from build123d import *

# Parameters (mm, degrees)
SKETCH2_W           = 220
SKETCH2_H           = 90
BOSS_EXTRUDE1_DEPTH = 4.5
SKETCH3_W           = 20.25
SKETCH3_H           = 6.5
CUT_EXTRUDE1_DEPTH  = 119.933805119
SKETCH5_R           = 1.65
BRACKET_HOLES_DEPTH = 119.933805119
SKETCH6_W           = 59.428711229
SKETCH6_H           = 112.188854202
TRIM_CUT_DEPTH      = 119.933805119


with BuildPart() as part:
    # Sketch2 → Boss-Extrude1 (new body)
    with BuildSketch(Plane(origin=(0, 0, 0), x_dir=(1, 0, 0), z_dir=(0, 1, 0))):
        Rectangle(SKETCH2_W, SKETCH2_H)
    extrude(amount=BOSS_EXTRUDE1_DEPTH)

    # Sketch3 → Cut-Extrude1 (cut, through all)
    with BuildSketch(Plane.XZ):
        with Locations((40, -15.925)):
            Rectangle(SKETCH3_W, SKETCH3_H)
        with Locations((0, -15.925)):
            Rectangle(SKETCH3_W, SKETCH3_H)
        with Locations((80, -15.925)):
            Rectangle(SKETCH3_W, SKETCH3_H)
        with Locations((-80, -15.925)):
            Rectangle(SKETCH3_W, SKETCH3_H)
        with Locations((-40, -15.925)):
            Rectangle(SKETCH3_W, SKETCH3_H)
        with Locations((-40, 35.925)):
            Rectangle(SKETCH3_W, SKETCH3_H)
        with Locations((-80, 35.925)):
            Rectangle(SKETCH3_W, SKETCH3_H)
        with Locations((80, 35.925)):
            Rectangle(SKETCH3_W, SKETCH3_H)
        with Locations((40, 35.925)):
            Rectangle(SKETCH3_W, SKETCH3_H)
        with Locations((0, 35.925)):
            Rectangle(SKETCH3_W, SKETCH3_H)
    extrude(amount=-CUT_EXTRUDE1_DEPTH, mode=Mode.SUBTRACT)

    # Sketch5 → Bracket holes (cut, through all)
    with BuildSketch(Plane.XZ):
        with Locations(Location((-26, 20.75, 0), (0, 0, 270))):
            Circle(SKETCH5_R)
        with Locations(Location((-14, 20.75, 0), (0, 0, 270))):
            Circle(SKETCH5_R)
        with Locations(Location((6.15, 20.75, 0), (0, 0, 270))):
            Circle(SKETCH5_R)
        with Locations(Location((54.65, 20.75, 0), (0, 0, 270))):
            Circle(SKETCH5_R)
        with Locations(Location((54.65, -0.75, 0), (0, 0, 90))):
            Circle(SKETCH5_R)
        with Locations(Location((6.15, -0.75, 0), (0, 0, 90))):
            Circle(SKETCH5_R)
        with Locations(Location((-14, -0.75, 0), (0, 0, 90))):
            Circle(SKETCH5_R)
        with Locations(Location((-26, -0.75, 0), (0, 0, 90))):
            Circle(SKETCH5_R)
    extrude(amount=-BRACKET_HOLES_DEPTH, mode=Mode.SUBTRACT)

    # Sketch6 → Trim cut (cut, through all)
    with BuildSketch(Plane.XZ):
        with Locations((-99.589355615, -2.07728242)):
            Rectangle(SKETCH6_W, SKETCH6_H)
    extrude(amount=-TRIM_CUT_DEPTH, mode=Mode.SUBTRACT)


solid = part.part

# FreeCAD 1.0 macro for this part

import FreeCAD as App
import Part
import Sketcher
Q = App.Units.Quantity

doc = App.newDocument("Part")
body = doc.addObject("PartDesign::Body", "Body")

# Sketch on XZ plane
sketch1 = doc.addObject("Sketcher::SketchObject", "Sketch")
body.addObject(sketch1)
sketch1.AttachmentSupport = (doc.XZ_Plane, [""])
sketch1.MapMode = "FlatFace"
sketch1.addGeometry([
    Part.LineSegment(App.Vector(-110, -45, 0), App.Vector(-110, 45, 0)),
    Part.LineSegment(App.Vector(-110, 45, 0), App.Vector(110, 45, 0)),
    Part.LineSegment(App.Vector(110, 45, 0), App.Vector(110, -45, 0)),
    Part.LineSegment(App.Vector(110, -45, 0), App.Vector(-110, -45, 0)),
], False)
sketch1.addConstraint([
    Sketcher.Constraint("Coincident", 0, 2, 1, 1),
    Sketcher.Constraint("Coincident", 1, 2, 2, 1),
    Sketcher.Constraint("Coincident", 2, 2, 3, 1),
    Sketcher.Constraint("Coincident", 3, 2, 0, 1),
    Sketcher.Constraint("Vertical", 0),
    Sketcher.Constraint("Horizontal", 1),
    Sketcher.Constraint("Vertical", 2),
    Sketcher.Constraint("Horizontal", 3),
    Sketcher.Constraint("Symmetric", 0, 2, 2, 2, -1, 1),
    Sketcher.Constraint("DistanceX", 1, 1, 1, 2, Q("220 mm")),
    Sketcher.Constraint("DistanceY", 0, 1, 0, 2, Q("90 mm")),
])
pad1 = doc.addObject("PartDesign::Pad", "Pad")
body.addObject(pad1)
pad1.Profile = sketch1
pad1.Length = 4.5
pad1.Reversed = True

# Sketch on XZ plane
sketch2 = doc.addObject("Sketcher::SketchObject", "Sketch001")
body.addObject(sketch2)
sketch2.AttachmentSupport = (doc.XZ_Plane, [""])
sketch2.MapMode = "FlatFace"
sketch2.addGeometry([
    Part.LineSegment(App.Vector(30, -13, 0), App.Vector(30, -19, 0)),  # 0
    Part.LineSegment(App.Vector(30, -19, 0), App.Vector(50, -19, 0)),  # 1
    Part.LineSegment(App.Vector(50, -19, 0), App.Vector(50, -13, 0)),  # 2
    Part.LineSegment(App.Vector(50, -13, 0), App.Vector(30, -13, 0)),  # 3
    Part.LineSegment(App.Vector(-10, -13, 0), App.Vector(-10, -19, 0)),  # 4
    Part.LineSegment(App.Vector(-10, -19, 0), App.Vector(10, -19, 0)),  # 5
    Part.LineSegment(App.Vector(10, -19, 0), App.Vector(10, -13, 0)),  # 6
    Part.LineSegment(App.Vector(10, -13, 0), App.Vector(-10, -13, 0)),  # 7
    Part.LineSegment(App.Vector(70, -13, 0), App.Vector(70, -19, 0)),  # 8
    Part.LineSegment(App.Vector(70, -19, 0), App.Vector(90, -19, 0)),  # 9
    Part.LineSegment(App.Vector(90, -19, 0), App.Vector(90, -13, 0)),  # 10
    Part.LineSegment(App.Vector(90, -13, 0), App.Vector(70, -13, 0)),  # 11
    Part.LineSegment(App.Vector(-90, -13, 0), App.Vector(-90, -19, 0)),  # 12
    Part.LineSegment(App.Vector(-90, -19, 0), App.Vector(-70, -19, 0)),  # 13
    Part.LineSegment(App.Vector(-70, -19, 0), App.Vector(-70, -13, 0)),  # 14
    Part.LineSegment(App.Vector(-70, -13, 0), App.Vector(-90, -13, 0)),  # 15
    Part.LineSegment(App.Vector(-50, -13, 0), App.Vector(-50, -19, 0)),  # 16
    Part.LineSegment(App.Vector(-50, -19, 0), App.Vector(-30, -19, 0)),  # 17
    Part.LineSegment(App.Vector(-30, -19, 0), App.Vector(-30, -13, 0)),  # 18
    Part.LineSegment(App.Vector(-30, -13, 0), App.Vector(-50, -13, 0)),  # 19
    Part.LineSegment(App.Vector(-50, 39, 0), App.Vector(-50, 33, 0)),  # 20
    Part.LineSegment(App.Vector(-50, 33, 0), App.Vector(-30, 33, 0)),  # 21
    Part.LineSegment(App.Vector(-30, 33, 0), App.Vector(-30, 39, 0)),  # 22
    Part.LineSegment(App.Vector(-30, 39, 0), App.Vector(-50, 39, 0)),  # 23
    Part.LineSegment(App.Vector(-90, 39, 0), App.Vector(-90, 33, 0)),  # 24
    Part.LineSegment(App.Vector(-90, 33, 0), App.Vector(-70, 33, 0)),  # 25
    Part.LineSegment(App.Vector(-70, 33, 0), App.Vector(-70, 39, 0)),  # 26
    Part.LineSegment(App.Vector(-70, 39, 0), App.Vector(-90, 39, 0)),  # 27
    Part.LineSegment(App.Vector(70, 39, 0), App.Vector(70, 33, 0)),  # 28
    Part.LineSegment(App.Vector(70, 33, 0), App.Vector(90, 33, 0)),  # 29
    Part.LineSegment(App.Vector(90, 33, 0), App.Vector(90, 39, 0)),  # 30
    Part.LineSegment(App.Vector(90, 39, 0), App.Vector(70, 39, 0)),  # 31
    Part.LineSegment(App.Vector(30, 39, 0), App.Vector(30, 33, 0)),  # 32
    Part.LineSegment(App.Vector(30, 33, 0), App.Vector(50, 33, 0)),  # 33
    Part.LineSegment(App.Vector(50, 33, 0), App.Vector(50, 39, 0)),  # 34
    Part.LineSegment(App.Vector(50, 39, 0), App.Vector(30, 39, 0)),  # 35
    Part.LineSegment(App.Vector(-10, 39, 0), App.Vector(-10, 33, 0)),  # 36
    Part.LineSegment(App.Vector(-10, 33, 0), App.Vector(10, 33, 0)),  # 37
    Part.LineSegment(App.Vector(10, 33, 0), App.Vector(10, 39, 0)),  # 38
    Part.LineSegment(App.Vector(10, 39, 0), App.Vector(-10, 39, 0)),  # 39
], False)
sketch2.addConstraint([
    Sketcher.Constraint("Coincident", 0, 2, 1, 1),
    Sketcher.Constraint("Coincident", 1, 2, 2, 1),
    Sketcher.Constraint("Coincident", 2, 2, 3, 1),
    Sketcher.Constraint("Coincident", 3, 2, 0, 1),
    Sketcher.Constraint("Coincident", 4, 2, 5, 1),
    Sketcher.Constraint("Coincident", 5, 2, 6, 1),
    Sketcher.Constraint("Coincident", 6, 2, 7, 1),
    Sketcher.Constraint("Coincident", 7, 2, 4, 1),
    Sketcher.Constraint("Coincident", 8, 2, 9, 1),
    Sketcher.Constraint("Coincident", 9, 2, 10, 1),
    Sketcher.Constraint("Coincident", 10, 2, 11, 1),
    Sketcher.Constraint("Coincident", 11, 2, 8, 1),
    Sketcher.Constraint("Coincident", 12, 2, 13, 1),
    Sketcher.Constraint("Coincident", 13, 2, 14, 1),
    Sketcher.Constraint("Coincident", 14, 2, 15, 1),
    Sketcher.Constraint("Coincident", 15, 2, 12, 1),
    Sketcher.Constraint("Coincident", 16, 2, 17, 1),
    Sketcher.Constraint("Coincident", 17, 2, 18, 1),
    Sketcher.Constraint("Coincident", 18, 2, 19, 1),
    Sketcher.Constraint("Coincident", 19, 2, 16, 1),
    Sketcher.Constraint("Coincident", 20, 2, 21, 1),
    Sketcher.Constraint("Coincident", 21, 2, 22, 1),
    Sketcher.Constraint("Coincident", 22, 2, 23, 1),
    Sketcher.Constraint("Coincident", 23, 2, 20, 1),
    Sketcher.Constraint("Coincident", 24, 2, 25, 1),
    Sketcher.Constraint("Coincident", 25, 2, 26, 1),
    Sketcher.Constraint("Coincident", 26, 2, 27, 1),
    Sketcher.Constraint("Coincident", 27, 2, 24, 1),
    Sketcher.Constraint("Coincident", 28, 2, 29, 1),
    Sketcher.Constraint("Coincident", 29, 2, 30, 1),
    Sketcher.Constraint("Coincident", 30, 2, 31, 1),
    Sketcher.Constraint("Coincident", 31, 2, 28, 1),
    Sketcher.Constraint("Coincident", 32, 2, 33, 1),
    Sketcher.Constraint("Coincident", 33, 2, 34, 1),
    Sketcher.Constraint("Coincident", 34, 2, 35, 1),
    Sketcher.Constraint("Coincident", 35, 2, 32, 1),
    Sketcher.Constraint("Coincident", 36, 2, 37, 1),
    Sketcher.Constraint("Coincident", 37, 2, 38, 1),
    Sketcher.Constraint("Coincident", 38, 2, 39, 1),
    Sketcher.Constraint("Coincident", 39, 2, 36, 1),
    Sketcher.Constraint("Vertical", 0),
    Sketcher.Constraint("Horizontal", 1),
    Sketcher.Constraint("Vertical", 2),
    Sketcher.Constraint("Horizontal", 3),
    Sketcher.Constraint("Vertical", 4),
    Sketcher.Constraint("Horizontal", 5),
    Sketcher.Constraint("Vertical", 6),
    Sketcher.Constraint("Horizontal", 7),
    Sketcher.Constraint("Vertical", 8),
    Sketcher.Constraint("Horizontal", 9),
    Sketcher.Constraint("Vertical", 10),
    Sketcher.Constraint("Horizontal", 11),
    Sketcher.Constraint("Vertical", 12),
    Sketcher.Constraint("Horizontal", 13),
    Sketcher.Constraint("Vertical", 14),
    Sketcher.Constraint("Horizontal", 15),
    Sketcher.Constraint("Vertical", 16),
    Sketcher.Constraint("Horizontal", 17),
    Sketcher.Constraint("Vertical", 18),
    Sketcher.Constraint("Horizontal", 19),
    Sketcher.Constraint("Vertical", 20),
    Sketcher.Constraint("Horizontal", 21),
    Sketcher.Constraint("Vertical", 22),
    Sketcher.Constraint("Horizontal", 23),
    Sketcher.Constraint("Vertical", 24),
    Sketcher.Constraint("Horizontal", 25),
    Sketcher.Constraint("Vertical", 26),
    Sketcher.Constraint("Horizontal", 27),
    Sketcher.Constraint("Vertical", 28),
    Sketcher.Constraint("Horizontal", 29),
    Sketcher.Constraint("Vertical", 30),
    Sketcher.Constraint("Horizontal", 31),
    Sketcher.Constraint("Vertical", 32),
    Sketcher.Constraint("Horizontal", 33),
    Sketcher.Constraint("Vertical", 34),
    Sketcher.Constraint("Horizontal", 35),
    Sketcher.Constraint("Vertical", 36),
    Sketcher.Constraint("Horizontal", 37),
    Sketcher.Constraint("Vertical", 38),
    Sketcher.Constraint("Horizontal", 39),
    Sketcher.Constraint("Symmetric", 9, 2, 12, 2, -2),
    Sketcher.Constraint("Symmetric", 11, 2, 14, 2, -2),
    Sketcher.Constraint("Symmetric", 1, 2, 16, 2, -2),
    Sketcher.Constraint("Symmetric", 3, 2, 18, 2, -2),
    Sketcher.Constraint("Symmetric", 25, 2, 28, 2, -2),
    Sketcher.Constraint("Symmetric", 27, 2, 30, 2, -2),
    Sketcher.Constraint("Symmetric", 21, 2, 32, 2, -2),
    Sketcher.Constraint("Symmetric", 23, 2, 34, 2, -2),
    Sketcher.Constraint("Horizontal", 1, 2, 4, 2),
    Sketcher.Constraint("Horizontal", 3, 2, 6, 2),
    Sketcher.Constraint("Horizontal", 5, 2, 8, 2),
    Sketcher.Constraint("Horizontal", 7, 2, 10, 2),
    Sketcher.Constraint("Horizontal", 21, 2, 24, 2),
    Sketcher.Constraint("Horizontal", 23, 2, 26, 2),
    Sketcher.Constraint("Horizontal", 33, 2, 36, 2),
    Sketcher.Constraint("Horizontal", 35, 2, 38, 2),
    Sketcher.Constraint("Vertical", 19, 2, 20, 2),
    Sketcher.Constraint("Vertical", 18, 2, 21, 2),
    Sketcher.Constraint("Vertical", 15, 2, 24, 2),
    Sketcher.Constraint("Vertical", 14, 2, 25, 2),
    Sketcher.Constraint("Vertical", 7, 2, 36, 2),
    Sketcher.Constraint("Vertical", 6, 2, 37, 2),
    Sketcher.Constraint("Equal", 3, 5),
    Sketcher.Constraint("Equal", 7, 9),
    Sketcher.Constraint("Equal", 18, 20),
    Sketcher.Constraint("DistanceY", 0, 2, 0, 1, Q("6.5 mm")),
    Sketcher.Constraint("DistanceX", 4, 2, 0, 2, Q("40 mm")),
    Sketcher.Constraint("DistanceX", 0, 2, 8, 2, Q("40 mm")),
    Sketcher.Constraint("DistanceX", 12, 2, 4, 2, Q("80 mm")),
    Sketcher.Constraint("DistanceX", 1, 1, 1, 2, Q("20.25 mm")),
    Sketcher.Constraint("DistanceY", 19, 2, 20, 2, Q("45.35 mm")),
    Sketcher.Constraint("DistanceY", 0, 2, -1, 1, Q("19.175 mm")),
])
pocket1 = doc.addObject("PartDesign::Pocket", "Pocket")
body.addObject(pocket1)
pocket1.Profile = sketch2
pocket1.Type = "ThroughAll"

# Sketch on XZ plane
sketch3 = doc.addObject("Sketcher::SketchObject", "Sketch002")
body.addObject(sketch3)
sketch3.AttachmentSupport = (doc.XZ_Plane, [""])
sketch3.MapMode = "FlatFace"
sketch3.addGeometry([
    Part.Circle(App.Vector(-26, 20.8, 0), App.Vector(0, 0, 1), 1.6),  # 0
    Part.Circle(App.Vector(-14, 20.8, 0), App.Vector(0, 0, 1), 1.6),  # 1
    Part.Circle(App.Vector(6.2, 20.8, 0), App.Vector(0, 0, 1), 1.6),  # 2
    Part.Circle(App.Vector(54.6, 20.8, 0), App.Vector(0, 0, 1), 1.6),  # 3
    Part.Circle(App.Vector(54.6, -0.8, 0), App.Vector(0, 0, 1), 1.6),  # 4
    Part.Circle(App.Vector(6.2, -0.8, 0), App.Vector(0, 0, 1), 1.6),  # 5
    Part.Circle(App.Vector(-14, -0.8, 0), App.Vector(0, 0, 1), 1.6),  # 6
    Part.Circle(App.Vector(-26, -0.8, 0), App.Vector(0, 0, 1), 1.6),  # 7
], False)
sketch3.addConstraint([
    Sketcher.Constraint("Equal", 0, 1),
    Sketcher.Constraint("Equal", 1, 2),
    Sketcher.Constraint("Equal", 2, 3),
    Sketcher.Constraint("Equal", 3, 4),
    Sketcher.Constraint("Equal", 4, 5),
    Sketcher.Constraint("Equal", 5, 6),
    Sketcher.Constraint("Equal", 6, 7),
    Sketcher.Constraint("Horizontal", 0, 3, 1, 3),
    Sketcher.Constraint("Horizontal", 1, 3, 2, 3),
    Sketcher.Constraint("Horizontal", 2, 3, 3, 3),
    Sketcher.Constraint("Horizontal", 4, 3, 5, 3),
    Sketcher.Constraint("Horizontal", 5, 3, 6, 3),
    Sketcher.Constraint("Horizontal", 6, 3, 7, 3),
    Sketcher.Constraint("Vertical", 3, 3, 4, 3),
    Sketcher.Constraint("Vertical", 2, 3, 5, 3),
    Sketcher.Constraint("Vertical", 1, 3, 6, 3),
    Sketcher.Constraint("Vertical", 0, 3, 7, 3),
    Sketcher.Constraint("Diameter", 0, Q("3.3 mm")),
    Sketcher.Constraint("DistanceX", 0, 3, -1, 1, Q("26 mm")),
    Sketcher.Constraint("DistanceX", 1, 3, -1, 1, Q("14 mm")),
    Sketcher.Constraint("DistanceX", 2, 3, 3, 3, Q("48.5 mm")),
    Sketcher.Constraint("DistanceY", 4, 3, 3, 3, Q("21.5 mm")),
    Sketcher.Constraint("DistanceY", -1, 1, 0, 3, Q("20.75 mm")),
    Sketcher.Constraint("DistanceX", -1, 1, 2, 3, Q("6.15 mm")),
])
pocket2 = doc.addObject("PartDesign::Pocket", "Pocket001")
body.addObject(pocket2)
pocket2.Profile = sketch3
pocket2.Type = "ThroughAll"

# Sketch on XZ plane
sketch4 = doc.addObject("Sketcher::SketchObject", "Sketch003")
body.addObject(sketch4)
sketch4.AttachmentSupport = (doc.XZ_Plane, [""])
sketch4.MapMode = "FlatFace"
sketch4.addGeometry([
    Part.LineSegment(App.Vector(-129, 54, 0), App.Vector(-129, -58, 0)),
    Part.LineSegment(App.Vector(-129, -58, 0), App.Vector(-70, -58, 0)),
    Part.LineSegment(App.Vector(-70, -58, 0), App.Vector(-70, 54, 0)),
    Part.LineSegment(App.Vector(-70, 54, 0), App.Vector(-129, 54, 0)),
], False)
sketch4.addConstraint([
    Sketcher.Constraint("Coincident", 0, 2, 1, 1),
    Sketcher.Constraint("Coincident", 1, 2, 2, 1),
    Sketcher.Constraint("Coincident", 2, 2, 3, 1),
    Sketcher.Constraint("Coincident", 3, 2, 0, 1),
    Sketcher.Constraint("Vertical", 0),
    Sketcher.Constraint("Horizontal", 1),
    Sketcher.Constraint("Vertical", 2),
    Sketcher.Constraint("Horizontal", 3),
    Sketcher.Constraint("DistanceX", 1, 2, -1, 1, Q("69.875 mm")),
    Sketcher.Constraint("DistanceX", 1, 1, 1, 2, Q("59.428711 mm")),
    Sketcher.Constraint("DistanceY", 0, 2, 0, 1, Q("112.188854 mm")),
    Sketcher.Constraint("DistanceY", 0, 2, -1, 1, Q("58.17171 mm")),
])
pocket3 = doc.addObject("PartDesign::Pocket", "Pocket002")
body.addObject(pocket3)
pocket3.Profile = sketch4
pocket3.Type = "ThroughAll"

doc.recompute()
